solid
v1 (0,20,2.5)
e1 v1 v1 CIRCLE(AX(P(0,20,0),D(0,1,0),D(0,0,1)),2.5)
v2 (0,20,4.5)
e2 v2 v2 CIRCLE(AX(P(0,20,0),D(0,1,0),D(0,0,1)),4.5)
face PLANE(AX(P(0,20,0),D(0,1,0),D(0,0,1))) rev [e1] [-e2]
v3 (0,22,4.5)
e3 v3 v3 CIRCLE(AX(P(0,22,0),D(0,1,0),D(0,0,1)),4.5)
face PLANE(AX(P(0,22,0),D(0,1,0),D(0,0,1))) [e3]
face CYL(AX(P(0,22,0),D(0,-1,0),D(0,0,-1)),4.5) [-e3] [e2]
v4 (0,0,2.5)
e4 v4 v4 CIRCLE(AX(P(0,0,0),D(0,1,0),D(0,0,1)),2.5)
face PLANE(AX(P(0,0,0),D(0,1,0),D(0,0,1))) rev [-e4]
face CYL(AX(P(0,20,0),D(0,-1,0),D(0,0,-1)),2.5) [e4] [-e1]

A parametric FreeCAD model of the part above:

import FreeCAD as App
import Part
import Sketcher

V = App.Vector

doc = App.newDocument("Part")
body = doc.addObject("PartDesign::Body", "Body")

# Sketch on XZ plane
sketch1 = body.newObject("Sketcher::SketchObject", "Sketch")
sketch1.AttachmentSupport = (doc.getObject("XZ_Plane"), [""])
sketch1.MapMode = "FlatFace"
sketch1.addGeometry(Part.Circle(V(0, 0, 0), V(0, 0, 1), 2.5), False)
sketch1.addConstraint([
    Sketcher.Constraint("Coincident", 0, 3, -1, 1),
    Sketcher.Constraint("Diameter", 0, 5.0),
])
pad1 = body.newObject("PartDesign::Pad", "Pad")
pad1.Profile = sketch1
pad1.Length = 20
pad1.Reversed = True

# Sketch on XZ plane
sketch2 = body.newObject("Sketcher::SketchObject", "Sketch001")
sketch2.AttachmentSupport = (doc.getObject("XZ_Plane"), [""])
sketch2.MapMode = "FlatFace"
sketch2.AttachmentOffset = App.Placement(V(0, 0, -20), App.Rotation())
sketch2.addGeometry(Part.Circle(V(0, 0, 0), V(0, 0, 1), 4.5), False)
sketch2.addConstraint([
    Sketcher.Constraint("Coincident", 0, 3, -1, 1),
    Sketcher.Constraint("Diameter", 0, 9.0),
])
pad2 = body.newObject("PartDesign::Pad", "Pad001")
pad2.Profile = sketch2
pad2.Length = 2
pad2.Reversed = True

doc.recompute()
